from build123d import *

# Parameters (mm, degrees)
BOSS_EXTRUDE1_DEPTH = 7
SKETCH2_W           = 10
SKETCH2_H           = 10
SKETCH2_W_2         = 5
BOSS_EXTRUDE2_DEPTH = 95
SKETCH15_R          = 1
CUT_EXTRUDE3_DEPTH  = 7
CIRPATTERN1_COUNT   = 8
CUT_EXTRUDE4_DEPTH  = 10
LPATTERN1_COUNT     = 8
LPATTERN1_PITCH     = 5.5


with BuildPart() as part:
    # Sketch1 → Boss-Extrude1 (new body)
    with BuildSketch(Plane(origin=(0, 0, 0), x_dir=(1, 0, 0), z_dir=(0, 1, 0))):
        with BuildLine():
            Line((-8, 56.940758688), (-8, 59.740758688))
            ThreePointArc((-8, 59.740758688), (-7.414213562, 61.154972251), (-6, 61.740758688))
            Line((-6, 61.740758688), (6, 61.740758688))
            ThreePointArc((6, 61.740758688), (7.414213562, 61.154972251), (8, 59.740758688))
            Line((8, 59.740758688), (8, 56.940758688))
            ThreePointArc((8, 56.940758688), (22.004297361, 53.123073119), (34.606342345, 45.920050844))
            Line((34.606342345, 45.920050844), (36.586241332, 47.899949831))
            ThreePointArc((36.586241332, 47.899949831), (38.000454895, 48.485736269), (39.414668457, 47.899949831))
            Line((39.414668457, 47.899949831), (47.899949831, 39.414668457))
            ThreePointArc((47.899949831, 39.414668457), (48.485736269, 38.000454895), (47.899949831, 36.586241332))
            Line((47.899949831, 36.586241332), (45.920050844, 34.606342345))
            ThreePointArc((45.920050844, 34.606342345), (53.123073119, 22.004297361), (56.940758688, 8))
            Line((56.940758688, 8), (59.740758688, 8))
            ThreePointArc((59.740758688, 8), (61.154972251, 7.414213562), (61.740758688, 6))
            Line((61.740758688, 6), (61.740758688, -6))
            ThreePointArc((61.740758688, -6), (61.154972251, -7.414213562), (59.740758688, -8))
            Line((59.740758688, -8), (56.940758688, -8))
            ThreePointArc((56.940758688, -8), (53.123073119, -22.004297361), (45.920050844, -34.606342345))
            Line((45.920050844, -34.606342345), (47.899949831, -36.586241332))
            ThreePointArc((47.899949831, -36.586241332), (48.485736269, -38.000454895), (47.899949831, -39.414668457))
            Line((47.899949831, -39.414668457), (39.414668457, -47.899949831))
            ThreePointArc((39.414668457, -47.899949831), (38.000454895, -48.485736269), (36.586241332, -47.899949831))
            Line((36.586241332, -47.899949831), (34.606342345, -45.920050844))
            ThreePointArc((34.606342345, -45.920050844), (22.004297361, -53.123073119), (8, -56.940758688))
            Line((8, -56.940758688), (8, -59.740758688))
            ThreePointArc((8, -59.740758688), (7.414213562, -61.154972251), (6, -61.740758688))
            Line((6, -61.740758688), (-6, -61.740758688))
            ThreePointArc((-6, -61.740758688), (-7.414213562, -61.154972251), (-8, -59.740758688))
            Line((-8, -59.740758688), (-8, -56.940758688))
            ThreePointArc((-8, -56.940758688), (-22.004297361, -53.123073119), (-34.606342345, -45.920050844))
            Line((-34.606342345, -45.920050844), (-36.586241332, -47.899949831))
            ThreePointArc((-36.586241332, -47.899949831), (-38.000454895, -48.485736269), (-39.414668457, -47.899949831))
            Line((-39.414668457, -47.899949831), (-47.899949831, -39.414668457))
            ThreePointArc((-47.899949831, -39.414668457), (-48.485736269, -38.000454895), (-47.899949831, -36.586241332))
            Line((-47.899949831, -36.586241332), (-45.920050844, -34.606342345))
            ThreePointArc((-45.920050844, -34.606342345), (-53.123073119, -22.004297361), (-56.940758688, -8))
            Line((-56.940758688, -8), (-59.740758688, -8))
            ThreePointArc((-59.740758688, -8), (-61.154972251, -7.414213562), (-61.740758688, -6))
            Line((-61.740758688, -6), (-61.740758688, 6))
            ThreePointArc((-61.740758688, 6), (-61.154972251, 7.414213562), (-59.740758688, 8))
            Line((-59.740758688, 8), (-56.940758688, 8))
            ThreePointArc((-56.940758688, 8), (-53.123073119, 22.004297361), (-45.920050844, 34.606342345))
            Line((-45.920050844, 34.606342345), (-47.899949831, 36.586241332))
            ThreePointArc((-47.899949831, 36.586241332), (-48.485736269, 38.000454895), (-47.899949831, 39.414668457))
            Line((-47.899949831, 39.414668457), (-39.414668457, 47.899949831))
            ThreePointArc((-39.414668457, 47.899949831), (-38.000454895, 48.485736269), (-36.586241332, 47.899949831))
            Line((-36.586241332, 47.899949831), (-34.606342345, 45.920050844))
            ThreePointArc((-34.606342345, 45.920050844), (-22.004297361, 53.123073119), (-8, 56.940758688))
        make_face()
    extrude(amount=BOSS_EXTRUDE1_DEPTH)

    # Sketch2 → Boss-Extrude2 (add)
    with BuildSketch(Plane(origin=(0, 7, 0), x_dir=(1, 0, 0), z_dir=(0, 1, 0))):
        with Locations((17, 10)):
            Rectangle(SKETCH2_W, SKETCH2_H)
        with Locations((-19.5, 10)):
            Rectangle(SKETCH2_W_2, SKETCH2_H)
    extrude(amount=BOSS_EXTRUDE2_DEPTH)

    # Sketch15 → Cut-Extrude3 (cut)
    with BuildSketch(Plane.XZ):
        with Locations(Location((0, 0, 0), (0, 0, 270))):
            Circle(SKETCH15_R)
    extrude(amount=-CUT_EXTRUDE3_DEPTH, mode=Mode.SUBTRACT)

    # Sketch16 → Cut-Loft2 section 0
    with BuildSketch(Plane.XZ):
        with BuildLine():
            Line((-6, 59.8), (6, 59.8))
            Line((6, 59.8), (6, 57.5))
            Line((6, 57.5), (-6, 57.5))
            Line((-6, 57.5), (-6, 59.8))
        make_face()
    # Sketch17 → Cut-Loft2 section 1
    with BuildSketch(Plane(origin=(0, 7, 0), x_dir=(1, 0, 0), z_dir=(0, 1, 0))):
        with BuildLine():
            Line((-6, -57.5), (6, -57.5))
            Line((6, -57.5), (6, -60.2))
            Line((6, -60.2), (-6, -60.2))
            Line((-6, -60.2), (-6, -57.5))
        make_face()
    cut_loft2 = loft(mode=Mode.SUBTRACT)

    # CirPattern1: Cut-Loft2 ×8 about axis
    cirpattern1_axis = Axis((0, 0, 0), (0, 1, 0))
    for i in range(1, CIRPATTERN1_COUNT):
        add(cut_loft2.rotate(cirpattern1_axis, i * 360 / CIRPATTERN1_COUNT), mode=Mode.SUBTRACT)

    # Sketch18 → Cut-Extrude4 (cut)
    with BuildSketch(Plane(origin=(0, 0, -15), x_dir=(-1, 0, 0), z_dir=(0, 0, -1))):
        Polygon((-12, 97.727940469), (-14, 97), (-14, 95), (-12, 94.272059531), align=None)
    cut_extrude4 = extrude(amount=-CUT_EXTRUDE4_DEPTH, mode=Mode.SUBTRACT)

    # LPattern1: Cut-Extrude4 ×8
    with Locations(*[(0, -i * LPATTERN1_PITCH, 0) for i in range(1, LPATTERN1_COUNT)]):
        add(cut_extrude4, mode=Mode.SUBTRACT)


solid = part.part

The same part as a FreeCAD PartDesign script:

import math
import FreeCAD as App
import Part
import Sketcher
Q = App.Units.Quantity


def add_polygon(sketch, points):
    """Adds a closed chain of lines whose ends are joined by coincident constraints."""
    first, n = sketch.GeometryCount, len(points)
    for a, b in zip(points, points[1:] + points[:1]):
        sketch.addGeometry(Part.LineSegment(App.Vector(*a, 0), App.Vector(*b, 0)), False)
    for i in range(n):
        sketch.addConstraint(Sketcher.Constraint("Coincident", first + i, 2, first + (i + 1) % n, 1))

doc = App.newDocument("Part")
body = doc.addObject("PartDesign::Body", "Body")

# Sketch on XZ plane
sketch1 = doc.addObject("Sketcher::SketchObject", "Sketch")
body.addObject(sketch1)
sketch1.AttachmentSupport = (doc.XZ_Plane, [""])
sketch1.MapMode = "FlatFace"
sketch1.addGeometry(Part.LineSegment(App.Vector(-8, -59.7, 0), App.Vector(-8, -56.9, 0)), False)
sketch1.addGeometry(Part.ArcOfCircle(Part.Circle(App.Vector(0, 0, 0), App.Vector(0, 0, 1), 57.5), math.radians(-127), math.radians(-98)), False)
sketch1.addGeometry(Part.LineSegment(App.Vector(-34.6, -45.9, 0), App.Vector(-36.6, -47.9, 0)), False)
sketch1.addGeometry(Part.ArcOfCircle(Part.Circle(App.Vector(-38, -46.5, 0), App.Vector(0, 0, 1), 2), math.radians(-135), math.radians(-45)), False)
sketch1.addGeometry(Part.LineSegment(App.Vector(-39.4, -47.9, 0), App.Vector(-47.9, -39.4, 0)), False)
sketch1.addGeometry(Part.ArcOfCircle(Part.Circle(App.Vector(-46.5, -38, 0), App.Vector(0, 0, 1), 2), math.radians(135), math.radians(225)), False)
sketch1.addGeometry(Part.LineSegment(App.Vector(-47.9, -36.6, 0), App.Vector(-45.9, -34.6, 0)), False)
sketch1.addGeometry(Part.ArcOfCircle(Part.Circle(App.Vector(0, 0, 0), App.Vector(0, 0, 1), 57.5), math.radians(-172), math.radians(-143)), False)
sketch1.addGeometry(Part.LineSegment(App.Vector(-56.9, -8, 0), App.Vector(-59.7, -8, 0)), False)
sketch1.addGeometry(Part.ArcOfCircle(Part.Circle(App.Vector(-59.7, -6, 0), App.Vector(0, 0, 1), 2), math.radians(180), math.radians(270)), False)
sketch1.addGeometry(Part.LineSegment(App.Vector(-61.7, -6, 0), App.Vector(-61.7, 6, 0)), False)
sketch1.addGeometry(Part.ArcOfCircle(Part.Circle(App.Vector(-59.7, 6, 0), App.Vector(0, 0, 1), 2), math.radians(90), math.radians(180)), False)
sketch1.addGeometry(Part.LineSegment(App.Vector(-59.7, 8, 0), App.Vector(-56.9, 8, 0)), False)
sketch1.addGeometry(Part.ArcOfCircle(Part.Circle(App.Vector(0, 0, 0), App.Vector(0, 0, 1), 57.5), math.radians(143), math.radians(172)), False)
sketch1.addGeometry(Part.LineSegment(App.Vector(-45.9, 34.6, 0), App.Vector(-47.9, 36.6, 0)), False)
sketch1.addGeometry(Part.ArcOfCircle(Part.Circle(App.Vector(-46.5, 38, 0), App.Vector(0, 0, 1), 2), math.radians(135), math.radians(225)), False)
sketch1.addGeometry(Part.LineSegment(App.Vector(-47.9, 39.4, 0), App.Vector(-39.4, 47.9, 0)), False)
sketch1.addGeometry(Part.ArcOfCircle(Part.Circle(App.Vector(-38, 46.5, 0), App.Vector(0, 0, 1), 2), math.radians(45), math.radians(135)), False)
sketch1.addGeometry(Part.LineSegment(App.Vector(-36.6, 47.9, 0), App.Vector(-34.6, 45.9, 0)), False)
sketch1.addGeometry(Part.ArcOfCircle(Part.Circle(App.Vector(0, 0, 0), App.Vector(0, 0, 1), 57.5), math.radians(98), math.radians(127)), False)
sketch1.addGeometry(Part.LineSegment(App.Vector(-8, 56.9, 0), App.Vector(-8, 59.7, 0)), False)
sketch1.addGeometry(Part.ArcOfCircle(Part.Circle(App.Vector(-6, 59.7, 0), App.Vector(0, 0, 1), 2), math.radians(90), math.radians(180)), False)
sketch1.addGeometry(Part.LineSegment(App.Vector(-6, 61.7, 0), App.Vector(6, 61.7, 0)), False)
sketch1.addGeometry(Part.ArcOfCircle(Part.Circle(App.Vector(6, 59.7, 0), App.Vector(0, 0, 1), 2), math.radians(0), math.radians(90)), False)
sketch1.addGeometry(Part.LineSegment(App.Vector(8, 59.7, 0), App.Vector(8, 56.9, 0)), False)
sketch1.addGeometry(Part.ArcOfCircle(Part.Circle(App.Vector(0, 0, 0), App.Vector(0, 0, 1), 57.5), math.radians(53), math.radians(82)), False)
sketch1.addGeometry(Part.LineSegment(App.Vector(34.6, 45.9, 0), App.Vector(36.6, 47.9, 0)), False)
sketch1.addGeometry(Part.ArcOfCircle(Part.Circle(App.Vector(38, 46.5, 0), App.Vector(0, 0, 1), 2), math.radians(45), math.radians(135)), False)
sketch1.addGeometry(Part.LineSegment(App.Vector(39.4, 47.9, 0), App.Vector(47.9, 39.4, 0)), False)
sketch1.addGeometry(Part.ArcOfCircle(Part.Circle(App.Vector(46.5, 38, 0), App.Vector(0, 0, 1), 2), math.radians(-45), math.radians(45)), False)
sketch1.addGeometry(Part.LineSegment(App.Vector(47.9, 36.6, 0), App.Vector(45.9, 34.6, 0)), False)
sketch1.addGeometry(Part.ArcOfCircle(Part.Circle(App.Vector(0, 0, 0), App.Vector(0, 0, 1), 57.5), math.radians(8), math.radians(37)), False)
sketch1.addGeometry(Part.LineSegment(App.Vector(56.9, 8, 0), App.Vector(59.7, 8, 0)), False)
sketch1.addGeometry(Part.ArcOfCircle(Part.Circle(App.Vector(59.7, 6, 0), App.Vector(0, 0, 1), 2), math.radians(0), math.radians(90)), False)
sketch1.addGeometry(Part.LineSegment(App.Vector(61.7, 6, 0), App.Vector(61.7, -6, 0)), False)
sketch1.addGeometry(Part.ArcOfCircle(Part.Circle(App.Vector(59.7, -6, 0), App.Vector(0, 0, 1), 2), math.radians(-90), math.radians(0)), False)
sketch1.addGeometry(Part.LineSegment(App.Vector(59.7, -8, 0), App.Vector(56.9, -8, 0)), False)
sketch1.addGeometry(Part.ArcOfCircle(Part.Circle(App.Vector(0, 0, 0), App.Vector(0, 0, 1), 57.5), math.radians(-37), math.radians(-8)), False)
sketch1.addGeometry(Part.LineSegment(App.Vector(45.9, -34.6, 0), App.Vector(47.9, -36.6, 0)), False)
sketch1.addGeometry(Part.ArcOfCircle(Part.Circle(App.Vector(46.5, -38, 0), App.Vector(0, 0, 1), 2), math.radians(-45), math.radians(45)), False)
sketch1.addGeometry(Part.LineSegment(App.Vector(47.9, -39.4, 0), App.Vector(39.4, -47.9, 0)), False)
sketch1.addGeometry(Part.ArcOfCircle(Part.Circle(App.Vector(38, -46.5, 0), App.Vector(0, 0, 1), 2), math.radians(-135), math.radians(-45)), False)
sketch1.addGeometry(Part.LineSegment(App.Vector(36.6, -47.9, 0), App.Vector(34.6, -45.9, 0)), False)
sketch1.addGeometry(Part.ArcOfCircle(Part.Circle(App.Vector(0, 0, 0), App.Vector(0, 0, 1), 57.5), math.radians(-82), math.radians(-53)), False)
sketch1.addGeometry(Part.LineSegment(App.Vector(8, -56.9, 0), App.Vector(8, -59.7, 0)), False)
sketch1.addGeometry(Part.ArcOfCircle(Part.Circle(App.Vector(6, -59.7, 0), App.Vector(0, 0, 1), 2), math.radians(-90), math.radians(0)), False)
sketch1.addGeometry(Part.LineSegment(App.Vector(6, -61.7, 0), App.Vector(-6, -61.7, 0)), False)
sketch1.addGeometry(Part.ArcOfCircle(Part.Circle(App.Vector(-6, -59.7, 0), App.Vector(0, 0, 1), 2), math.radians(180), math.radians(270)), False)
sketch1.addConstraint(Sketcher.Constraint("Coincident", 0, 2, 1, 2))
sketch1.addConstraint(Sketcher.Constraint("Coincident", 1, 1, 2, 1))
sketch1.addConstraint(Sketcher.Constraint("Tangent", 2, 2, 3, 2))
sketch1.addConstraint(Sketcher.Constraint("Tangent", 3, 1, 4, 1))
sketch1.addConstraint(Sketcher.Constraint("Tangent", 4, 2, 5, 2))
sketch1.addConstraint(Sketcher.Constraint("Tangent", 5, 1, 6, 1))
sketch1.addConstraint(Sketcher.Constraint("Coincident", 6, 2, 7, 2))
sketch1.addConstraint(Sketcher.Constraint("Coincident", 7, 1, 8, 1))
sketch1.addConstraint(Sketcher.Constraint("Tangent", 8, 2, 9, 2))
sketch1.addConstraint(Sketcher.Constraint("Tangent", 9, 1, 10, 1))
sketch1.addConstraint(Sketcher.Constraint("Tangent", 10, 2, 11, 2))
sketch1.addConstraint(Sketcher.Constraint("Tangent", 11, 1, 12, 1))
sketch1.addConstraint(Sketcher.Constraint("Coincident", 12, 2, 13, 2))
sketch1.addConstraint(Sketcher.Constraint("Coincident", 13, 1, 14, 1))
sketch1.addConstraint(Sketcher.Constraint("Tangent", 14, 2, 15, 2))
sketch1.addConstraint(Sketcher.Constraint("Tangent", 15, 1, 16, 1))
sketch1.addConstraint(Sketcher.Constraint("Tangent", 16, 2, 17, 2))
sketch1.addConstraint(Sketcher.Constraint("Tangent", 17, 1, 18, 1))
sketch1.addConstraint(Sketcher.Constraint("Coincident", 18, 2, 19, 2))
sketch1.addConstraint(Sketcher.Constraint("Coincident", 19, 1, 20, 1))
sketch1.addConstraint(Sketcher.Constraint("Tangent", 20, 2, 21, 2))
sketch1.addConstraint(Sketcher.Constraint("Tangent", 21, 1, 22, 1))
sketch1.addConstraint(Sketcher.Constraint("Tangent", 22, 2, 23, 2))
sketch1.addConstraint(Sketcher.Constraint("Tangent", 23, 1, 24, 1))
sketch1.addConstraint(Sketcher.Constraint("Coincident", 24, 2, 25, 2))
sketch1.addConstraint(Sketcher.Constraint("Coincident", 25, 1, 26, 1))
sketch1.addConstraint(Sketcher.Constraint("Tangent", 26, 2, 27, 2))
sketch1.addConstraint(Sketcher.Constraint("Tangent", 27, 1, 28, 1))
sketch1.addConstraint(Sketcher.Constraint("Tangent", 28, 2, 29, 2))
sketch1.addConstraint(Sketcher.Constraint("Tangent", 29, 1, 30, 1))
sketch1.addConstraint(Sketcher.Constraint("Coincident", 30, 2, 31, 2))
sketch1.addConstraint(Sketcher.Constraint("Coincident", 31, 1, 32, 1))
sketch1.addConstraint(Sketcher.Constraint("Tangent", 32, 2, 33, 2))
sketch1.addConstraint(Sketcher.Constraint("Tangent", 33, 1, 34, 1))
sketch1.addConstraint(Sketcher.Constraint("Tangent", 34, 2, 35, 2))
sketch1.addConstraint(Sketcher.Constraint("Tangent", 35, 1, 36, 1))
sketch1.addConstraint(Sketcher.Constraint("Coincident", 36, 2, 37, 2))
sketch1.addConstraint(Sketcher.Constraint("Coincident", 37, 1, 38, 1))
sketch1.addConstraint(Sketcher.Constraint("Tangent", 38, 2, 39, 2))
sketch1.addConstraint(Sketcher.Constraint("Tangent", 39, 1, 40, 1))
sketch1.addConstraint(Sketcher.Constraint("Tangent", 40, 2, 41, 2))
sketch1.addConstraint(Sketcher.Constraint("Tangent", 41, 1, 42, 1))
sketch1.addConstraint(Sketcher.Constraint("Coincident", 42, 2, 43, 2))
sketch1.addConstraint(Sketcher.Constraint("Coincident", 43, 1, 44, 1))
sketch1.addConstraint(Sketcher.Constraint("Tangent", 44, 2, 45, 2))
sketch1.addConstraint(Sketcher.Constraint("Tangent", 45, 1, 46, 1))
sketch1.addConstraint(Sketcher.Constraint("Tangent", 46, 2, 47, 2))
sketch1.addConstraint(Sketcher.Constraint("Tangent", 47, 1, 0, 1))
sketch1.addConstraint(Sketcher.Constraint("Vertical", 0))
sketch1.addConstraint(Sketcher.Constraint("Horizontal", 8))
sketch1.addConstraint(Sketcher.Constraint("Vertical", 10))
sketch1.addConstraint(Sketcher.Constraint("Horizontal", 12))
sketch1.addConstraint(Sketcher.Constraint("Vertical", 20))
sketch1.addConstraint(Sketcher.Constraint("Horizontal", 22))
sketch1.addConstraint(Sketcher.Constraint("Vertical", 24))
sketch1.addConstraint(Sketcher.Constraint("Horizontal", 32))
sketch1.addConstraint(Sketcher.Constraint("Vertical", 34))
sketch1.addConstraint(Sketcher.Constraint("Horizontal", 36))
sketch1.addConstraint(Sketcher.Constraint("Vertical", 44))
sketch1.addConstraint(Sketcher.Constraint("Horizontal", 46))
sketch1.addConstraint(Sketcher.Constraint("Coincident", 1, 3, -1, 1))
sketch1.addConstraint(Sketcher.Constraint("Coincident", 7, 3, -1, 1))
sketch1.addConstraint(Sketcher.Constraint("Coincident", 13, 3, -1, 1))
sketch1.addConstraint(Sketcher.Constraint("Coincident", 19, 3, -1, 1))
sketch1.addConstraint(Sketcher.Constraint("Coincident", 25, 3, -1, 1))
sketch1.addConstraint(Sketcher.Constraint("Coincident", 31, 3, -1, 1))
sketch1.addConstraint(Sketcher.Constraint("Coincident", 37, 3, -1, 1))
sketch1.addConstraint(Sketcher.Constraint("Coincident", 43, 3, -1, 1))
sketch1.addConstraint(Sketcher.Constraint("Equal", 3, 5))
sketch1.addConstraint(Sketcher.Constraint("Equal", 1, 7))
sketch1.addConstraint(Sketcher.Constraint("Equal", 5, 9))
sketch1.addConstraint(Sketcher.Constraint("Equal", 9, 11))
sketch1.addConstraint(Sketcher.Constraint("Equal", 7, 13))
sketch1.addConstraint(Sketcher.Constraint("Equal", 11, 15))
sketch1.addConstraint(Sketcher.Constraint("Equal", 15, 17))
sketch1.addConstraint(Sketcher.Constraint("Equal", 13, 19))
sketch1.addConstraint(Sketcher.Constraint("Equal", 17, 21))
sketch1.addConstraint(Sketcher.Constraint("Equal", 21, 23))
sketch1.addConstraint(Sketcher.Constraint("Equal", 19, 25))
sketch1.addConstraint(Sketcher.Constraint("Equal", 23, 27))
sketch1.addConstraint(Sketcher.Constraint("Equal", 27, 29))
sketch1.addConstraint(Sketcher.Constraint("Equal", 25, 31))
sketch1.addConstraint(Sketcher.Constraint("Equal", 29, 33))
sketch1.addConstraint(Sketcher.Constraint("Equal", 33, 35))
sketch1.addConstraint(Sketcher.Constraint("Equal", 31, 37))
sketch1.addConstraint(Sketcher.Constraint("Equal", 35, 39))
sketch1.addConstraint(Sketcher.Constraint("Equal", 39, 41))
sketch1.addConstraint(Sketcher.Constraint("Equal", 37, 43))
sketch1.addConstraint(Sketcher.Constraint("Equal", 41, 45))
sketch1.addConstraint(Sketcher.Constraint("Equal", 45, 47))
sketch1.addConstraint(Sketcher.Constraint("Symmetric", 3, 3, 27, 3, -1, 1))
sketch1.addConstraint(Sketcher.Constraint("Symmetric", 5, 3, 29, 3, -1, 1))
sketch1.addConstraint(Sketcher.Constraint("Symmetric", 9, 3, 33, 3, -1, 1))
sketch1.addConstraint(Sketcher.Constraint("Symmetric", 15, 3, 39, 3, -1, 1))
sketch1.addConstraint(Sketcher.Constraint("Symmetric", 17, 3, 41, 3, -1, 1))
sketch1.addConstraint(Sketcher.Constraint("Symmetric", 21, 3, 45, 3, -1, 1))
sketch1.addConstraint(Sketcher.Constraint("Symmetric", 17, 3, 27, 3, -2))
sketch1.addConstraint(Sketcher.Constraint("Symmetric", 15, 3, 29, 3, -2))
sketch1.addConstraint(Sketcher.Constraint("Perpendicular", 2, 4))
sketch1.addConstraint(Sketcher.Constraint("Perpendicular", 4, 6))
sketch1.addConstraint(Sketcher.Constraint("Perpendicular", 6, 14))
sketch1.addConstraint(Sketcher.Constraint("Perpendicular", 14, 16))
sketch1.addConstraint(Sketcher.Constraint("Perpendicular", 16, 18))
sketch1.addConstraint(Sketcher.Constraint("Perpendicular", 18, 26))
sketch1.addConstraint(Sketcher.Constraint("Perpendicular", 28, 30))
sketch1.addConstraint(Sketcher.Constraint("Perpendicular", 30, 38))
sketch1.addConstraint(Sketcher.Constraint("Perpendicular", 40, 42))
sketch1.addConstraint(Sketcher.Constraint("Horizontal", 11, 3, 33, 3))
sketch1.addConstraint(Sketcher.Constraint("Horizontal", 9, 3, 35, 3))
sketch1.addConstraint(Sketcher.Constraint("Horizontal", 19, 1, 24, 2))
sketch1.addConstraint(Sketcher.Constraint("Horizontal", 0, 2, 43, 1))
sketch1.addConstraint(Sketcher.Constraint("Equal", 36, 0))
sketch1.addConstraint(Sketcher.Constraint("Equal", 46, 10))
sketch1.addConstraint(Sketcher.Constraint("Equal", 2, 6))
sketch1.addConstraint(Sketcher.Constraint("Radius", 3, 2.0))
sketch1.addConstraint(Sketcher.Constraint("Radius", 1, 57.5))
sketch1.addConstraint(Sketcher.Constraint("DistanceX", 22, 1, 22, 2, 12.0))
sketch1.addConstraint(Sketcher.Constraint("Distance", 4, 12.0))
sketch1.addConstraint(Sketcher.Constraint("DistanceX", 8, 2, 8, 1, 2.8))
sketch1.addConstraint(Sketcher.Constraint("Distance", 2, 2.8))
pad1 = doc.addObject("PartDesign::Pad", "Pad")
body.addObject(pad1)
pad1.Profile = sketch1
pad1.Length = 7
pad1.Reversed = True

# Sketch on XZ plane
sketch2 = doc.addObject("Sketcher::SketchObject", "Sketch001")
body.addObject(sketch2)
sketch2.AttachmentSupport = (doc.XZ_Plane, [""])
sketch2.MapMode = "FlatFace"
sketch2.AttachmentOffset = App.Placement(App.Vector(0, 0, -7), App.Rotation())
add_polygon(sketch2, [(12, -15), (12, -5), (22, -5), (22, -15)])  # lines 0-3
add_polygon(sketch2, [(-22, -15), (-22, -5), (-17, -5), (-17, -15)])  # lines 4-7
sketch2.addConstraint(Sketcher.Constraint("Vertical", 0))
sketch2.addConstraint(Sketcher.Constraint("Horizontal", 1))
sketch2.addConstraint(Sketcher.Constraint("Vertical", 2))
sketch2.addConstraint(Sketcher.Constraint("Horizontal", 3))
sketch2.addConstraint(Sketcher.Constraint("Vertical", 4))
sketch2.addConstraint(Sketcher.Constraint("Horizontal", 5))
sketch2.addConstraint(Sketcher.Constraint("Vertical", 6))
sketch2.addConstraint(Sketcher.Constraint("Horizontal", 7))
sketch2.addConstraint(Sketcher.Constraint("Symmetric", 1, 2, 4, 2, -2))
sketch2.addConstraint(Sketcher.Constraint("Horizontal", 3, 2, 6, 2))
sketch2.addConstraint(Sketcher.Constraint("Equal", 3, 0))
sketch2.addConstraint(Sketcher.Constraint("DistanceX", 1, 1, 1, 2, 10.0))
sketch2.addConstraint(Sketcher.Constraint("DistanceX", 5, 1, 5, 2, 5.0))
sketch2.addConstraint(Sketcher.Constraint("DistanceX", -1, 1, 0, 2, 12.0))
sketch2.addConstraint(Sketcher.Constraint("DistanceY", 0, 2, -1, 1, 5.0))
pad2 = doc.addObject("PartDesign::Pad", "Pad001")
body.addObject(pad2)
pad2.Profile = sketch2
pad2.Length = 95
pad2.Reversed = True

# Sketch on XZ plane
sketch3 = doc.addObject("Sketcher::SketchObject", "Sketch002")
body.addObject(sketch3)
sketch3.AttachmentSupport = (doc.XZ_Plane, [""])
sketch3.MapMode = "FlatFace"
sketch3.addGeometry(Part.Circle(App.Vector(0, 0, 0), App.Vector(0, 0, 1), 1), False)
sketch3.addConstraint(Sketcher.Constraint("Coincident", 0, 3, -1, 1))
sketch3.addConstraint(Sketcher.Constraint("Diameter", 0, 2.0))
pocket1 = doc.addObject("PartDesign::Pocket", "Pocket")
body.addObject(pocket1)
pocket1.Profile = sketch3
pocket1.Length = 7

# Sketch on XZ plane
sketch4 = doc.addObject("Sketcher::SketchObject", "Sketch003")
body.addObject(sketch4)
sketch4.AttachmentSupport = (doc.XZ_Plane, [""])
sketch4.MapMode = "FlatFace"
add_polygon(sketch4, [(6, 59.8), (-6, 59.8), (-6, 57.5), (6, 57.5)])  # lines 0-3
sketch4.addConstraint(Sketcher.Constraint("Horizontal", 0))
sketch4.addConstraint(Sketcher.Constraint("Vertical", 1))
sketch4.addConstraint(Sketcher.Constraint("Horizontal", 2))
sketch4.addConstraint(Sketcher.Constraint("Vertical", 3))
sketch4.addConstraint(Sketcher.Constraint("DistanceX", 0, 2, 0, 1, 12.0))
sketch4.addConstraint(Sketcher.Constraint("DistanceY", 1, 2, 1, 1, 2.3))
sketch4.addConstraint(Sketcher.Constraint("DistanceX", 0, 2, -1, 1, 6.0))
sketch4.addConstraint(Sketcher.Constraint("DistanceY", -1, 1, 0, 2, 59.8))

# Sketch on XZ plane
sketch5 = doc.addObject("Sketcher::SketchObject", "Sketch004")
body.addObject(sketch5)
sketch5.AttachmentSupport = (doc.XZ_Plane, [""])
sketch5.MapMode = "FlatFace"
sketch5.AttachmentOffset = App.Placement(App.Vector(0, 0, -7), App.Rotation())
add_polygon(sketch5, [(6, 57.5), (-6, 57.5), (-6, 60.2), (6, 60.2)])  # lines 0-3
sketch5.addConstraint(Sketcher.Constraint("Horizontal", 0))
sketch5.addConstraint(Sketcher.Constraint("Vertical", 1))
sketch5.addConstraint(Sketcher.Constraint("Horizontal", 2))
sketch5.addConstraint(Sketcher.Constraint("Vertical", 3))
sketch5.addConstraint(Sketcher.Constraint("DistanceX", 0, 2, 0, 1, 12.0))
sketch5.addConstraint(Sketcher.Constraint("DistanceY", 1, 1, 1, 2, 2.7))
sketch5.addConstraint(Sketcher.Constraint("DistanceX", 0, 2, -1, 1, 6.0))
sketch5.addConstraint(Sketcher.Constraint("DistanceY", -1, 1, 0, 2, 57.5))

subtractiveloft = doc.addObject("PartDesign::SubtractiveLoft", "SubtractiveLoft")
body.addObject(subtractiveloft)
subtractiveloft.Profile = sketch4
subtractiveloft.Sections = [sketch5]
doc.recompute()

polarpattern = doc.addObject("PartDesign::PolarPattern", "PolarPattern")
body.addObject(polarpattern)
polarpattern.Originals = [subtractiveloft]
polarpattern.Axis = (doc.Y_Axis, [""])
polarpattern.Angle = 360
polarpattern.Occurrences = 8
body.Tip = polarpattern

# Sketch on XY plane
sketch6 = doc.addObject("Sketcher::SketchObject", "Sketch005")
body.addObject(sketch6)
sketch6.AttachmentSupport = (doc.XY_Plane, [""])
sketch6.MapMode = "FlatFace"
sketch6.AttachmentOffset = App.Placement(App.Vector(0, 0, -15), App.Rotation())
add_polygon(sketch6, [(12, 97.7), (14, 97), (14, 95), (12, 94.3)])  # lines 0-3
sketch6.addConstraint(Sketcher.Constraint("Vertical", 1))
sketch6.addConstraint(Sketcher.Constraint("Vertical", 3))
sketch6.addConstraint(Sketcher.Constraint("Equal", 0, 2))
sketch6.addConstraint(Sketcher.Constraint("DistanceY", 1, 2, 1, 1, 2.0))
sketch6.addConstraint(Sketcher.Constraint("Angle", 0, Q("-20 deg")))
sketch6.addConstraint(Sketcher.Constraint("DistanceX", -1, 1, 0, 2, 14.0))
sketch6.addConstraint(Sketcher.Constraint("DistanceY", -1, 1, 0, 2, 97.0))
sketch6.addConstraint(Sketcher.Constraint("DistanceX", -1, 1, 2, 2, 12.0))
pocket2 = doc.addObject("PartDesign::Pocket", "Pocket001")
body.addObject(pocket2)
pocket2.Profile = sketch6
pocket2.Length = 10
pocket2.Reversed = True
doc.recompute()

linearpattern = doc.addObject("PartDesign::LinearPattern", "LinearPattern")
body.addObject(linearpattern)
linearpattern.Originals = [pocket2]
linearpattern.Direction = (doc.Y_Axis, [""])
linearpattern.Mode = "offset"
linearpattern.Offset = 5.5
linearpattern.Occurrences = 8
linearpattern.Reversed = True
body.Tip = linearpattern

doc.recompute()
